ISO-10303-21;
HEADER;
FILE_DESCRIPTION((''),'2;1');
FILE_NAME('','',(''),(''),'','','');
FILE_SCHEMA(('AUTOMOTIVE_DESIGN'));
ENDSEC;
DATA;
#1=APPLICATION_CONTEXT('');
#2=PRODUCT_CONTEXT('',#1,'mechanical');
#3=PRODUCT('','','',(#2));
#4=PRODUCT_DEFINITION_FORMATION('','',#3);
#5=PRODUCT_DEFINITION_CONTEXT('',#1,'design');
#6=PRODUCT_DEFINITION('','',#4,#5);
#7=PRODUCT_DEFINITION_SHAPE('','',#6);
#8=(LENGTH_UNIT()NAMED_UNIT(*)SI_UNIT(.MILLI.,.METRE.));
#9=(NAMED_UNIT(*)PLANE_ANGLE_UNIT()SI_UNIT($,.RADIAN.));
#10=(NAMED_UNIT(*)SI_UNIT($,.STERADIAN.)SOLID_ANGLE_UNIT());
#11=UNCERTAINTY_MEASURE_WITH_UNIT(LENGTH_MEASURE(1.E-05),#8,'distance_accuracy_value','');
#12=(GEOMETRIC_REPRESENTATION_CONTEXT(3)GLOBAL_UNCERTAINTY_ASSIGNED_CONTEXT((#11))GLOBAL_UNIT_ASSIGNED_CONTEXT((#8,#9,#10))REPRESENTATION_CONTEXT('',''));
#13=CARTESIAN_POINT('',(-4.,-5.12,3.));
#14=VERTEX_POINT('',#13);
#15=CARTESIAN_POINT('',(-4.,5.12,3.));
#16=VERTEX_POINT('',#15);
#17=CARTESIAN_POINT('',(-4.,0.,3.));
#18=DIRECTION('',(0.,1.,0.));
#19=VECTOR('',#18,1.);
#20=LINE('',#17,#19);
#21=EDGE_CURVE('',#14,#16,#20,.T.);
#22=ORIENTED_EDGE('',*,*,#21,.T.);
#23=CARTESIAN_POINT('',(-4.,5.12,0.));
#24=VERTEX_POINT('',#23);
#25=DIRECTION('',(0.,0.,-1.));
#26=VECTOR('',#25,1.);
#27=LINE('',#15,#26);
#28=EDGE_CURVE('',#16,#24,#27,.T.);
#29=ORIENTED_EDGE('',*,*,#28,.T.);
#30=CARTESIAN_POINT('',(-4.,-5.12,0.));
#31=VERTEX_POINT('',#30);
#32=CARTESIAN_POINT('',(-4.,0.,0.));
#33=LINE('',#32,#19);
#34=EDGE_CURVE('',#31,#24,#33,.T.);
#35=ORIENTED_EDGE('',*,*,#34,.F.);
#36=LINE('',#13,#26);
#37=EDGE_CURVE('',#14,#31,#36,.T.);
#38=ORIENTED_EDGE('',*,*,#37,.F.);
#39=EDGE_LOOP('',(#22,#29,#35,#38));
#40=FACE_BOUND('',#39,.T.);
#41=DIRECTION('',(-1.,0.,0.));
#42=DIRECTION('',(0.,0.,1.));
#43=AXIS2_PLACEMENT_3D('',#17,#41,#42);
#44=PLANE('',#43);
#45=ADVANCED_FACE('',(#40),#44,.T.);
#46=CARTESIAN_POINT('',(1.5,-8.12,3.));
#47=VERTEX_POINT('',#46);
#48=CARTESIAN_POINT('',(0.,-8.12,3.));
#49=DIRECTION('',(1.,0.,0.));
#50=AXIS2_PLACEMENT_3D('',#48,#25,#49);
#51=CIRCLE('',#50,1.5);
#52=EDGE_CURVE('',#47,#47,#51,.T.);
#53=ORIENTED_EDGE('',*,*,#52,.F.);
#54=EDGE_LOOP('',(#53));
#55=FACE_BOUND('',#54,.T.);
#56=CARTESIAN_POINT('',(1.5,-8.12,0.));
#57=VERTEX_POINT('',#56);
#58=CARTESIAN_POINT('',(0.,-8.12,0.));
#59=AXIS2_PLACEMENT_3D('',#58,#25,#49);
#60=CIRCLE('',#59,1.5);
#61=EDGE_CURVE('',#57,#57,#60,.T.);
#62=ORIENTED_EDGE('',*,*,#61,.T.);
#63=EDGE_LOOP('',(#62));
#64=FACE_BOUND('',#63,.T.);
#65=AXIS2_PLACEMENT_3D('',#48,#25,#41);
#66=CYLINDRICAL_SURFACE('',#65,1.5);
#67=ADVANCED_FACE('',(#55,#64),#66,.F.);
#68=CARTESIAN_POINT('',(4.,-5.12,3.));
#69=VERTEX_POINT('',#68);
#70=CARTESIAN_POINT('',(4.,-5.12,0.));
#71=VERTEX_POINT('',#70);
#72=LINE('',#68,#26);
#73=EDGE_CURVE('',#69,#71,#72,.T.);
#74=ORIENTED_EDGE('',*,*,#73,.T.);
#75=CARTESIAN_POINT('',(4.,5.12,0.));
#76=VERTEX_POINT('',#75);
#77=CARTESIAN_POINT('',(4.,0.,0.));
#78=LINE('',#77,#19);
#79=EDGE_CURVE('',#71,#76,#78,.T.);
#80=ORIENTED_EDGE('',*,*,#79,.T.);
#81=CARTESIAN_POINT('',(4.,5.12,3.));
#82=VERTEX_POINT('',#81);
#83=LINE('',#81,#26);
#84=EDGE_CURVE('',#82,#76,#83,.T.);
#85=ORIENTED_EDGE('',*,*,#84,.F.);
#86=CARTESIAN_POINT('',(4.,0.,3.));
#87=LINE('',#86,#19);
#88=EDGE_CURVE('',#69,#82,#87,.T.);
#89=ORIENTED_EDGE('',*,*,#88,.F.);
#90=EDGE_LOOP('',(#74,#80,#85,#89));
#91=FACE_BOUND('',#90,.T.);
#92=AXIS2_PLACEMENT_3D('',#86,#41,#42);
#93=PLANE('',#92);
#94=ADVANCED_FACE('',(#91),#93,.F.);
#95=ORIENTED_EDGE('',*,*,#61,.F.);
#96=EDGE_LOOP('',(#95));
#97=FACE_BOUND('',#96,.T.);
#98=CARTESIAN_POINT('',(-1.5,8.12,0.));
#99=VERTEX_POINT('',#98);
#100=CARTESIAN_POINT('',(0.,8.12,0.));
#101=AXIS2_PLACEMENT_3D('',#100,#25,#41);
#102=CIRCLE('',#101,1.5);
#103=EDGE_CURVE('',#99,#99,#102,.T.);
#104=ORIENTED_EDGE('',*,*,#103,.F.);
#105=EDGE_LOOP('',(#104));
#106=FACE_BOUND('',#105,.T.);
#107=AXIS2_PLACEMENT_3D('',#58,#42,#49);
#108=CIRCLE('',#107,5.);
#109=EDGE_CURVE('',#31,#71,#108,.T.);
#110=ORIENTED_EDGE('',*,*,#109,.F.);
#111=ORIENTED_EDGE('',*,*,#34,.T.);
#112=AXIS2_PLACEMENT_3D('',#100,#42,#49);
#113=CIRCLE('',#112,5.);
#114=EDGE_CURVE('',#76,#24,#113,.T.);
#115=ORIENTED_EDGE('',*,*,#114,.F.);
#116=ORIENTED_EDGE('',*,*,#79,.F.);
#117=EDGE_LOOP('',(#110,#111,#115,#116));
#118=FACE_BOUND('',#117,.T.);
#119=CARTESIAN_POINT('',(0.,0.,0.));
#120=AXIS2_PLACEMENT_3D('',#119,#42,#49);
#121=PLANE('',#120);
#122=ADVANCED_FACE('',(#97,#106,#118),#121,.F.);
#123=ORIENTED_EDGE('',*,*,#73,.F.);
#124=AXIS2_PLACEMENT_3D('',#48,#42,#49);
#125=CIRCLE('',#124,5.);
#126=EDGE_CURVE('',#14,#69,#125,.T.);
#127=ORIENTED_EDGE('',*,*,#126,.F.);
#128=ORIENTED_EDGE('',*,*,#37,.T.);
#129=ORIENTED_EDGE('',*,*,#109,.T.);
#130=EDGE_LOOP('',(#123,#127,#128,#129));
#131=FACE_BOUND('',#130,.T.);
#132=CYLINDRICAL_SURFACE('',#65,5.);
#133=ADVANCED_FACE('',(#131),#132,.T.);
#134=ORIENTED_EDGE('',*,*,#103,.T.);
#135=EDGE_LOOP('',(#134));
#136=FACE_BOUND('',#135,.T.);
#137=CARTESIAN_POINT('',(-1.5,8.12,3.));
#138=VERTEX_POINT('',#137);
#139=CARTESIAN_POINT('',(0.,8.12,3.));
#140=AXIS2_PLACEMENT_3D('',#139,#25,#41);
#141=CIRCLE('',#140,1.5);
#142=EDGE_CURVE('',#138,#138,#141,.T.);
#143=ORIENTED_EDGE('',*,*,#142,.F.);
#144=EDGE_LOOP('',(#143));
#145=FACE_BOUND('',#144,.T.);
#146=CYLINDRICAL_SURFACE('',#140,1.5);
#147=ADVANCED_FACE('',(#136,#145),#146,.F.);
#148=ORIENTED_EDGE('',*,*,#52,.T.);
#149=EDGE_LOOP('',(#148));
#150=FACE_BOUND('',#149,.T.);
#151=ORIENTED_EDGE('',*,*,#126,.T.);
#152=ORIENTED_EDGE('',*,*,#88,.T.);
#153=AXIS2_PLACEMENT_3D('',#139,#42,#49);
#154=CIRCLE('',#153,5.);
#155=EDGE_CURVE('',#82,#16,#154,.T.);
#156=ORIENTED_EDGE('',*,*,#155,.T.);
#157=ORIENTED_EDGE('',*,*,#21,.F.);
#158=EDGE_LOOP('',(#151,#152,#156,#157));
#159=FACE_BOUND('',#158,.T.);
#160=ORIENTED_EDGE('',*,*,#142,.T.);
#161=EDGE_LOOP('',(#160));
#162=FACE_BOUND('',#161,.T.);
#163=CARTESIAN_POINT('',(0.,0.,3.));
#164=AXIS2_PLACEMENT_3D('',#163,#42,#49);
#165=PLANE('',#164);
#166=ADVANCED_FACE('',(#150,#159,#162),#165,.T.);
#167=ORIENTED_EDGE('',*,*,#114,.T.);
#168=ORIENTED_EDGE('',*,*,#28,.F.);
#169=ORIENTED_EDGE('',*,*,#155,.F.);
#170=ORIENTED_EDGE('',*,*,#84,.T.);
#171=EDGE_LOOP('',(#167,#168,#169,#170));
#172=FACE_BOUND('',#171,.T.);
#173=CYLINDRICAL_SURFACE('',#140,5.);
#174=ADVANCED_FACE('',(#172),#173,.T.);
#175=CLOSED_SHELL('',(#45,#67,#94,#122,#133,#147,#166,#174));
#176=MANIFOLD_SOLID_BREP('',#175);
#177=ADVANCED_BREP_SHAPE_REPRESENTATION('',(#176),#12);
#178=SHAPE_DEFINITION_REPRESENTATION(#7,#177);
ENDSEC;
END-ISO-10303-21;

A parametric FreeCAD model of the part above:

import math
import FreeCAD as App
import Part
import Sketcher
from FreeCAD import Vector
Q = App.Units.Quantity

doc = App.newDocument("Part")
body = doc.addObject("PartDesign::Body", "Body")

sketch1 = body.newObject("Sketcher::SketchObject", "Sketch")
sketch1.AttachmentSupport = (doc.getObject("XY_Plane"), [""])
sketch1.MapMode = "FlatFace"
sketch1.addGeometry(Part.LineSegment(Vector(-4, 5.12, 0), Vector(-4, -5.12, 0)), False)
sketch1.addGeometry(Part.ArcOfCircle(Part.Circle(Vector(0, -8.12, 0), Vector(0, 0, 1), 5), math.radians(143.130102), math.radians(360)), False)
sketch1.addGeometry(Part.ArcOfCircle(Part.Circle(Vector(0, -8.12, 0), Vector(0, 0, 1), 5), math.radians(0), math.radians(36.869898)), False)
sketch1.addGeometry(Part.LineSegment(Vector(4, -5.12, 0), Vector(4, 5.12, 0)), False)
sketch1.addGeometry(Part.ArcOfCircle(Part.Circle(Vector(0, 8.12, 0), Vector(0, 0, 1), 5), math.radians(-36.869898), math.radians(0)), False)
sketch1.addGeometry(Part.ArcOfCircle(Part.Circle(Vector(0, 8.12, 0), Vector(0, 0, 1), 5), math.radians(0), math.radians(216.869898)), False)
sketch1.addConstraint(Sketcher.Constraint("Coincident", 0, 2, 1, 1))
sketch1.addConstraint(Sketcher.Constraint("Tangent", 1, 2, 2, 1))
sketch1.addConstraint(Sketcher.Constraint("Coincident", 2, 2, 3, 1))
sketch1.addConstraint(Sketcher.Constraint("Coincident", 3, 2, 4, 1))
sketch1.addConstraint(Sketcher.Constraint("Tangent", 4, 2, 5, 1))
sketch1.addConstraint(Sketcher.Constraint("Coincident", 5, 2, 0, 1))
sketch1.addConstraint(Sketcher.Constraint("Vertical", 0))
sketch1.addConstraint(Sketcher.Constraint("Vertical", 3))
sketch1.addConstraint(Sketcher.Constraint("Equal", 1, 2))
sketch1.addConstraint(Sketcher.Constraint("Equal", 2, 4))
sketch1.addConstraint(Sketcher.Constraint("Equal", 4, 5))
sketch1.addConstraint(Sketcher.Constraint("Symmetric", 1, 3, 4, 3, -1, 1))
sketch1.addConstraint(Sketcher.Constraint("Symmetric", 0, 2, 2, 2, -2))
sketch1.addConstraint(Sketcher.Constraint("Horizontal", 2, 3, 1, 2))
sketch1.addConstraint(Sketcher.Constraint("Horizontal", 5, 3, 4, 2))
sketch1.addConstraint(Sketcher.Constraint("Radius", 1, Q("5 mm")))
sketch1.addConstraint(Sketcher.Constraint("DistanceX", 0, 2, -1, 1, Q("4 mm")))
sketch1.addConstraint(Sketcher.Constraint("DistanceY", 0, 2, 0, 1, Q("10.24 mm")))
pad1 = body.newObject("PartDesign::Pad", "Pad")
pad1.Profile = sketch1
pad1.Length = 3

sketch2 = body.newObject("Sketcher::SketchObject", "Sketch001")
sketch2.AttachmentSupport = (doc.getObject("XY_Plane"), [""])
sketch2.MapMode = "FlatFace"
sketch2.addGeometry(Part.Circle(Vector(0, 8.12, 0), Vector(0, 0, 1), 1.5), False)
sketch2.addGeometry(Part.Circle(Vector(0, -8.12, 0), Vector(0, 0, 1), 1.5), False)
sketch2.addConstraint(Sketcher.Constraint("Equal", 0, 1))
sketch2.addConstraint(Sketcher.Constraint("Symmetric", 0, 3, 1, 3, -1, 1))
sketch2.addConstraint(Sketcher.Constraint("PointOnObject", 0, 3, -2))
sketch2.addConstraint(Sketcher.Constraint("Diameter", 0, Q("3 mm")))
sketch2.addConstraint(Sketcher.Constraint("DistanceY", -1, 1, 0, 3, Q("8.12 mm")))
pocket1 = body.newObject("PartDesign::Pocket", "Pocket")
pocket1.Profile = sketch2
pocket1.Type = "ThroughAll"
pocket1.Reversed = True

doc.recompute()
